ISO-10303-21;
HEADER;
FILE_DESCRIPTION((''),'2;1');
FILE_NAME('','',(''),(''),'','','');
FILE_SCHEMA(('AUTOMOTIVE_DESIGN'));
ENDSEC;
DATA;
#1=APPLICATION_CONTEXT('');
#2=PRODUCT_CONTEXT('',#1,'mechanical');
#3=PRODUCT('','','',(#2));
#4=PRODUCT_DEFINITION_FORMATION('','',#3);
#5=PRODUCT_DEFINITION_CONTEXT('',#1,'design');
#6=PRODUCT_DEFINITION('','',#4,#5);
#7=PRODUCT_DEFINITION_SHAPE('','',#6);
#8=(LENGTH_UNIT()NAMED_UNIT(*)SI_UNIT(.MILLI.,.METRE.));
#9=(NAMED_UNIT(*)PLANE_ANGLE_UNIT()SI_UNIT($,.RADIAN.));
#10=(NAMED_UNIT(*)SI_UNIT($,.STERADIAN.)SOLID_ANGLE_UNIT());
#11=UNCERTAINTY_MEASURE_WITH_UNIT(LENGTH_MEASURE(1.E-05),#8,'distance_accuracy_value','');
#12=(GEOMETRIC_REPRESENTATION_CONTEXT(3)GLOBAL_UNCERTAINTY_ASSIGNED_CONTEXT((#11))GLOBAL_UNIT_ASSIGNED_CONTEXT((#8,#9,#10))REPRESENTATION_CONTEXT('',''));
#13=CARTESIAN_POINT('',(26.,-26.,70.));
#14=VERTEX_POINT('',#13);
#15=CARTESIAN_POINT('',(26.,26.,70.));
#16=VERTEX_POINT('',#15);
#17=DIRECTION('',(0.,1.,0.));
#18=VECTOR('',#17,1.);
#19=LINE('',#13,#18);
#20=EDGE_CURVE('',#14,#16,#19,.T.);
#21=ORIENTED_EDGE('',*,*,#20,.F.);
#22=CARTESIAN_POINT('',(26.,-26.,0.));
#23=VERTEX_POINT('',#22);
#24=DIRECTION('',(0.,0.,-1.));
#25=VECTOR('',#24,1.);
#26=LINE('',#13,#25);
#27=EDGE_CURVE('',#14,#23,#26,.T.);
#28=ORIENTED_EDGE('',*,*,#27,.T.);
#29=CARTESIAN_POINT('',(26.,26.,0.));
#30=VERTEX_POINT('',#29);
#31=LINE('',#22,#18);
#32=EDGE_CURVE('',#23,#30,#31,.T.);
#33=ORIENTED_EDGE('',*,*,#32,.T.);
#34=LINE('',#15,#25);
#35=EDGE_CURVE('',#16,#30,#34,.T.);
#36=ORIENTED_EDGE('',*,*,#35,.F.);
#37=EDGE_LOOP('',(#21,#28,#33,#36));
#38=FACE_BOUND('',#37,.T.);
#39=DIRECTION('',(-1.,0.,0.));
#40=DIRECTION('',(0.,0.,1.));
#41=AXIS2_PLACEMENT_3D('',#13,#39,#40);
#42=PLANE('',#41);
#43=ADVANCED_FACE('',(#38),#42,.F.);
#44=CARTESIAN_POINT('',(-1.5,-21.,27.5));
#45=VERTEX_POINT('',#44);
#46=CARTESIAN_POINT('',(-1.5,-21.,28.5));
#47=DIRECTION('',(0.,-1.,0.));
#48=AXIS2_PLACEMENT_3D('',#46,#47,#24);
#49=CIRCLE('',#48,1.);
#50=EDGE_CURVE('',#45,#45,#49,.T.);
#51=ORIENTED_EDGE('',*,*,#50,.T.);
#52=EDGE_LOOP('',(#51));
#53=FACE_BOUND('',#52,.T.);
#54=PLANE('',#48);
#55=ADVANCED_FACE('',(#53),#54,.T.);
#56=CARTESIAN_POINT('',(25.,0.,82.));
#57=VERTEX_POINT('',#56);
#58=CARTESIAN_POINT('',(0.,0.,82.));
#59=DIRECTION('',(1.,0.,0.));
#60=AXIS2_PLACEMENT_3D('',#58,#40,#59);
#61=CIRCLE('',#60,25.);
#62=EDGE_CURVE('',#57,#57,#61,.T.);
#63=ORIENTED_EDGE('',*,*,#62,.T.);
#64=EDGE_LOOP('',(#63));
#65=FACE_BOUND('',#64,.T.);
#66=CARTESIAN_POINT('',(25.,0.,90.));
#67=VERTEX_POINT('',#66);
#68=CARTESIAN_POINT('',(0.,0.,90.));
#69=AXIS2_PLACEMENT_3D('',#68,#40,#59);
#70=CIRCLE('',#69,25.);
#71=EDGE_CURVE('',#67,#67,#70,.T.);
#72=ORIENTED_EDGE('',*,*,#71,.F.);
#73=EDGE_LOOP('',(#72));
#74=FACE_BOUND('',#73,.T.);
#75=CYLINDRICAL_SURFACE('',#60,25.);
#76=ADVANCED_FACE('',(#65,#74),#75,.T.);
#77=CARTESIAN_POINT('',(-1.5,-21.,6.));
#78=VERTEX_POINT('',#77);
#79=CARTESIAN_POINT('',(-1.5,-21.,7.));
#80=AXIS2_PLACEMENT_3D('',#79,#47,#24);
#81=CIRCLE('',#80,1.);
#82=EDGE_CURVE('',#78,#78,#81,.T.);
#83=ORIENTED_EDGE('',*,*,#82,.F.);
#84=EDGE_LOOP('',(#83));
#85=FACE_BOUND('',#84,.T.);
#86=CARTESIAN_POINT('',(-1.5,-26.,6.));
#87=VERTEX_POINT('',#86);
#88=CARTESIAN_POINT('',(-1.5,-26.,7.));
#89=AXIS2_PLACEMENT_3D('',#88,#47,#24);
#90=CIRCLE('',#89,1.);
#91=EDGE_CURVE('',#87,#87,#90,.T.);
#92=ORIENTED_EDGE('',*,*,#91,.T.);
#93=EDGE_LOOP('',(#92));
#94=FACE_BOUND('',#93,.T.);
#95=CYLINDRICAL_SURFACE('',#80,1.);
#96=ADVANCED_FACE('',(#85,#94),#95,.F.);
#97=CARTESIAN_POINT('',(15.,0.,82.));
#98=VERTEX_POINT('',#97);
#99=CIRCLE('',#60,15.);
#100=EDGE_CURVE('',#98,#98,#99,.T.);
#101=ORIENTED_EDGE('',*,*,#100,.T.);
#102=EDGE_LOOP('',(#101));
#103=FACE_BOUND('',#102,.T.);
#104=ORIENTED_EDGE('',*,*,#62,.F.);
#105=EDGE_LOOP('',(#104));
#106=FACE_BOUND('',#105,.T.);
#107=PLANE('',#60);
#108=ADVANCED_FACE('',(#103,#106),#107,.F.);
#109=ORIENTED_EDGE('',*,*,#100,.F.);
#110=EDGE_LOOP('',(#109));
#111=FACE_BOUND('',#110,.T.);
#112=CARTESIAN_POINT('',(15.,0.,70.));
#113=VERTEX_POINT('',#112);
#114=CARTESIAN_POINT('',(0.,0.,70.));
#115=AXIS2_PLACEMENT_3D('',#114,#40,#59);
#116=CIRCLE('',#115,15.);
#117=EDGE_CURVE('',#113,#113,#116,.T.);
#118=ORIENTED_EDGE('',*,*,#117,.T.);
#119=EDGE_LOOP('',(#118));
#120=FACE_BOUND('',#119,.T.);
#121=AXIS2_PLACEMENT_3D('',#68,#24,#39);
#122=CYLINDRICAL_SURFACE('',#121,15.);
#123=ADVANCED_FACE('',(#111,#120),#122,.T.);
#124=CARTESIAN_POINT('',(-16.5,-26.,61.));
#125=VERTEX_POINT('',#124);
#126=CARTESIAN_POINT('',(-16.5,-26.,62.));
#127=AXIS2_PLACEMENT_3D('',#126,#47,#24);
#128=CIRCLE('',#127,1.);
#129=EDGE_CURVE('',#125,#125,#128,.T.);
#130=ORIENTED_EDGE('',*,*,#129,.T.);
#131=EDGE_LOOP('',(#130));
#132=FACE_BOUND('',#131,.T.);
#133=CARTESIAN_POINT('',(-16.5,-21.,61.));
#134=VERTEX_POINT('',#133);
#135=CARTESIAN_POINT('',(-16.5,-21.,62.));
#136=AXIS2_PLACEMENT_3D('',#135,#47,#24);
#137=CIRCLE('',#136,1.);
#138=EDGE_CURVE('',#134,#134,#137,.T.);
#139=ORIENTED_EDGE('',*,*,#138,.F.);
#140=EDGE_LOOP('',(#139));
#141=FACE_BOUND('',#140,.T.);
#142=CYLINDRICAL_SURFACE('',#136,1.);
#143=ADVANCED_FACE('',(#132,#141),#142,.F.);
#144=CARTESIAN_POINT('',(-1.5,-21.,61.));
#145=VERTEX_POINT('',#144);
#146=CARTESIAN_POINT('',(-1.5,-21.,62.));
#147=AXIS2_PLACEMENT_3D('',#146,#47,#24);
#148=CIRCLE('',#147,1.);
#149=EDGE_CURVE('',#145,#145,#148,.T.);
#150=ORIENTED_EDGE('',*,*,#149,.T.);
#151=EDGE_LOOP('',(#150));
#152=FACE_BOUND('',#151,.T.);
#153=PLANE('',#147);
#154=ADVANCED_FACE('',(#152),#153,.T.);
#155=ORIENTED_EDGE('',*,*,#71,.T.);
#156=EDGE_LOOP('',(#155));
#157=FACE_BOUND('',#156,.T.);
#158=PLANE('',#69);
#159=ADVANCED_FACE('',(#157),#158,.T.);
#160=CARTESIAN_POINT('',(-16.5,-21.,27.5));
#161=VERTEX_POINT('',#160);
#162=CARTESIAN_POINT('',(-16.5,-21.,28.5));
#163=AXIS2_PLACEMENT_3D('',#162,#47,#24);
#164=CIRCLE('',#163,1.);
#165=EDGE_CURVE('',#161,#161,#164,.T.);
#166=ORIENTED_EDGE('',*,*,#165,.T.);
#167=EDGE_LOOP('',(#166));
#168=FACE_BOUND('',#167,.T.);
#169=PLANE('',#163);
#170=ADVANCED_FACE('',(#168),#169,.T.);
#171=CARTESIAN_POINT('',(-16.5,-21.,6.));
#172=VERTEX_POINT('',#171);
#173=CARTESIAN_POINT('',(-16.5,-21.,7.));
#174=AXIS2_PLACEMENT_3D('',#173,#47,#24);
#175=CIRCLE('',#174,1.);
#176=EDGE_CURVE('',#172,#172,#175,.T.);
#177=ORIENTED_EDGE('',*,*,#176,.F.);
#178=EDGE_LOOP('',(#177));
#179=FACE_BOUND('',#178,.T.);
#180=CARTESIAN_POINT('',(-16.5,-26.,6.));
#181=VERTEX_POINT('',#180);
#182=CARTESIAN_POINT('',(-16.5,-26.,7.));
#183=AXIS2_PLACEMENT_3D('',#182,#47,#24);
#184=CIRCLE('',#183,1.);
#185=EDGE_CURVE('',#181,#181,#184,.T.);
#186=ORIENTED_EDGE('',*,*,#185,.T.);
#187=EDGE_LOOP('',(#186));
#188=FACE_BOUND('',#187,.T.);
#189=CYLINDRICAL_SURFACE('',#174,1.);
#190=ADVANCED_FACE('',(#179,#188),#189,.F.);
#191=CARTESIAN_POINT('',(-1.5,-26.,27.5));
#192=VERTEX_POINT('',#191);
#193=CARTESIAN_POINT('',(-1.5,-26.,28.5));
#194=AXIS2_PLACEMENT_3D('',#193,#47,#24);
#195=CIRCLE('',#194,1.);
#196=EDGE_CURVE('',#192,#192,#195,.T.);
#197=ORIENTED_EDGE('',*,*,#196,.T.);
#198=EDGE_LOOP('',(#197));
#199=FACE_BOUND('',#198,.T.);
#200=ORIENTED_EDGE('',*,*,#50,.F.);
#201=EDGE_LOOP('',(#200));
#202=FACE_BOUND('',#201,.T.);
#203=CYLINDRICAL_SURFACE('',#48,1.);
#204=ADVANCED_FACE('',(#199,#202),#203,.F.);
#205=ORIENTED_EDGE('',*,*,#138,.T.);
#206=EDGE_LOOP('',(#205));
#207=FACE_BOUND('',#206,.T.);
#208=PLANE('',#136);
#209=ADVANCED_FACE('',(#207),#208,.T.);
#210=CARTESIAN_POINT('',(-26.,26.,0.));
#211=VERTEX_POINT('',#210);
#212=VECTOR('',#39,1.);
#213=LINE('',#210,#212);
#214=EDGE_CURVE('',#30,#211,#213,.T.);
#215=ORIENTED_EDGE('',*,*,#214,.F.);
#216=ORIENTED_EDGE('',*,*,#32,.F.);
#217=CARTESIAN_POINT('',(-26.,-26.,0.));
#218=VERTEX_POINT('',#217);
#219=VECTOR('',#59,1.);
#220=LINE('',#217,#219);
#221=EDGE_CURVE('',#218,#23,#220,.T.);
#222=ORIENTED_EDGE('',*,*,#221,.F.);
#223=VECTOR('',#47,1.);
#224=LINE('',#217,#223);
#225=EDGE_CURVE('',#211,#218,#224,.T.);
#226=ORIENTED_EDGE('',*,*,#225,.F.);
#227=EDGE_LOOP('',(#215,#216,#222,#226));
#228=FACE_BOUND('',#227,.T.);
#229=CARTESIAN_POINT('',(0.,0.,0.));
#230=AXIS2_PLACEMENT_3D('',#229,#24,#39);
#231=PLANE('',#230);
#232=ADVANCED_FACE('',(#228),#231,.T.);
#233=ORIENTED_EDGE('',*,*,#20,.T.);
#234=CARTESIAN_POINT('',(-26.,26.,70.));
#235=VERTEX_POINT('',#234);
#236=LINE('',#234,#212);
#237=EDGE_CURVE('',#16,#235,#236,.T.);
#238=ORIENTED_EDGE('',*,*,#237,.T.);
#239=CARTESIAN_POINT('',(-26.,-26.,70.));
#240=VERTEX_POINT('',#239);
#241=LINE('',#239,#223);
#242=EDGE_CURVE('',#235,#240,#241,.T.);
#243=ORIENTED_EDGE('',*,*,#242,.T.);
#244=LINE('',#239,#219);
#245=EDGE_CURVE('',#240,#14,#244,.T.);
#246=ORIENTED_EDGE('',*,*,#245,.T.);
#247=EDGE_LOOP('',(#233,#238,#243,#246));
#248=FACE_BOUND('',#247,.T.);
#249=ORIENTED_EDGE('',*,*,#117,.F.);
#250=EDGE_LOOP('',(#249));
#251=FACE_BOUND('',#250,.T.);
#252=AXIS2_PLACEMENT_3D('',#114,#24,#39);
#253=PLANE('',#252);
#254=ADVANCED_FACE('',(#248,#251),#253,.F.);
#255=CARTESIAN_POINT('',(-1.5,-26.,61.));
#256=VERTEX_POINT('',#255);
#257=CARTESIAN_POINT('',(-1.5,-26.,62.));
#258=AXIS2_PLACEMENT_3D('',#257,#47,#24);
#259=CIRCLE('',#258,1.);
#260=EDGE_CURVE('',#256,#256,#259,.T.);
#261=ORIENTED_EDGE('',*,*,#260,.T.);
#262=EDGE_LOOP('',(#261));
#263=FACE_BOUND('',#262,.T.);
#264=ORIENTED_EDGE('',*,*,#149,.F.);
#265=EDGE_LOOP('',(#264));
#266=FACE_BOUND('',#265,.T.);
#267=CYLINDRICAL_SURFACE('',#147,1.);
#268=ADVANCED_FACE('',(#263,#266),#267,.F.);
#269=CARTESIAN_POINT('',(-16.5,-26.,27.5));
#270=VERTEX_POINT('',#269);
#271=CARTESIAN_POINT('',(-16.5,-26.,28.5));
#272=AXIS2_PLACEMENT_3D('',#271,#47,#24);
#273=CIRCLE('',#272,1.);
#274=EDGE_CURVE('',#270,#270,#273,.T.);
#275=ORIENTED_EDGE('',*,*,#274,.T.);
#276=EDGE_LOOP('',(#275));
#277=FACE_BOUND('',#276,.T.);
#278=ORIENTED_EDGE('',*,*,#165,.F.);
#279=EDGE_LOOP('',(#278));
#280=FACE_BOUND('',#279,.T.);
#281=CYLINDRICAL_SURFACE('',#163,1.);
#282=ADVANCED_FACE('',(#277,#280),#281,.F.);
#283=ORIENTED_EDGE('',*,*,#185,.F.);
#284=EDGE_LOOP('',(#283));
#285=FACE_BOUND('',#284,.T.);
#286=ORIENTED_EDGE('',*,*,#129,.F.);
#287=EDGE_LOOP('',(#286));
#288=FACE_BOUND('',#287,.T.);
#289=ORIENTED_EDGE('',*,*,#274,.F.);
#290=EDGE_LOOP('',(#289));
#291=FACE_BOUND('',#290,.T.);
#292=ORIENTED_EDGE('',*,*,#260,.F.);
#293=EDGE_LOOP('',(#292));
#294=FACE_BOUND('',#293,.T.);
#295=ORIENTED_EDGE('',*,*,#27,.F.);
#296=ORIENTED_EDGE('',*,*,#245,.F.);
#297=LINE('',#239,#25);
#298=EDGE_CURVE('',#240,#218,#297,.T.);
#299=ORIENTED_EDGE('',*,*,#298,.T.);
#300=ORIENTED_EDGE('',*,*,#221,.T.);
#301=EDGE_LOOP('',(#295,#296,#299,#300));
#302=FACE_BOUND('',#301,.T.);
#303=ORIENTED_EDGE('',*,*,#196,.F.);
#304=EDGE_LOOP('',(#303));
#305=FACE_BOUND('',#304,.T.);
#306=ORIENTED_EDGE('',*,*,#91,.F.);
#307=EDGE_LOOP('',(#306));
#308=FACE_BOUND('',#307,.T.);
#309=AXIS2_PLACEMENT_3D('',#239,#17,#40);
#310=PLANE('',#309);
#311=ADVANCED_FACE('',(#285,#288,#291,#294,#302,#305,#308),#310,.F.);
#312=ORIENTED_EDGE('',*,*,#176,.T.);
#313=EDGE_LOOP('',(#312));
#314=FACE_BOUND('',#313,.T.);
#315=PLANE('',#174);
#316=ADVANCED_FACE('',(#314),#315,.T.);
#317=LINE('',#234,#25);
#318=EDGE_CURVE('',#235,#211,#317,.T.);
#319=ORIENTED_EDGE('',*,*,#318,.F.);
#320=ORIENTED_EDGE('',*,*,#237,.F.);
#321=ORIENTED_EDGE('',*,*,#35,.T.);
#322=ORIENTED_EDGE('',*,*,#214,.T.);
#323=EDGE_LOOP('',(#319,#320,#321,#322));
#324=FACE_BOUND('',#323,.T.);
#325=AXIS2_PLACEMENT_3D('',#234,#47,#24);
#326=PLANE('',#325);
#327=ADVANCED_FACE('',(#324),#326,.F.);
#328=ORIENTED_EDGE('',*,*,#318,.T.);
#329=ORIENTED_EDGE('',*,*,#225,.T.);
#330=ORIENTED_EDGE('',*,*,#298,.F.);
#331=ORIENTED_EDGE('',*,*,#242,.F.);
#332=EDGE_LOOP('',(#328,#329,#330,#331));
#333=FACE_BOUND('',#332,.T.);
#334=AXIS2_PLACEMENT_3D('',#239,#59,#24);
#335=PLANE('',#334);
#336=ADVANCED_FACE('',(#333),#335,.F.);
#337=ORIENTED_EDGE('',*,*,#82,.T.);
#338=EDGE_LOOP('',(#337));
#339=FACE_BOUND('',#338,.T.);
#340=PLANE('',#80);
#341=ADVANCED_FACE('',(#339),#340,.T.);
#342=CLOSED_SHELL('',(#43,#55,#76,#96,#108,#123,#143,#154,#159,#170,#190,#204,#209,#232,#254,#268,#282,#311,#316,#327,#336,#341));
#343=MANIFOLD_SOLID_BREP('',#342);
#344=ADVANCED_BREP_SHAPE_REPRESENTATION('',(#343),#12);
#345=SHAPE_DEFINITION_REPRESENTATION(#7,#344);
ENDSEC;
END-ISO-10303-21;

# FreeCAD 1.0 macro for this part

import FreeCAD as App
import Part
import Sketcher
from FreeCAD import Vector


def add_polygon(sketch, points):
    """Adds a closed chain of lines whose ends are joined by coincident constraints."""
    first, n = sketch.GeometryCount, len(points)
    for a, b in zip(points, points[1:] + points[:1]):
        sketch.addGeometry(Part.LineSegment(App.Vector(*a, 0), App.Vector(*b, 0)), False)
    for i in range(n):
        sketch.addConstraint(Sketcher.Constraint("Coincident", first + i, 2, first + (i + 1) % n, 1))

doc = App.newDocument("Part")
body = doc.addObject("PartDesign::Body", "Body")

# Sketch on XY plane
sketch1 = body.newObject("Sketcher::SketchObject", "Sketch")
sketch1.AttachmentSupport = (doc.getObject("XY_Plane"), [""])
sketch1.MapMode = "FlatFace"
add_polygon(sketch1, [(-26, 26), (-26, -26), (26, -26), (26, 26)])  # lines 0-3
sketch1.addConstraint([
    Sketcher.Constraint("Vertical", 0),
    Sketcher.Constraint("Horizontal", 1),
    Sketcher.Constraint("Vertical", 2),
    Sketcher.Constraint("Horizontal", 3),
    Sketcher.Constraint("Symmetric", 0, 2, 2, 2, -1, 1),
    Sketcher.Constraint("Equal", 3, 0),
    Sketcher.Constraint("DistanceX", 1, 1, 1, 2, 52.0),
])
pad1 = body.newObject("PartDesign::Pad", "Pad")
pad1.Profile = sketch1
pad1.Length = 70

# Sketch on XY plane
sketch2 = body.newObject("Sketcher::SketchObject", "Sketch001")
sketch2.AttachmentSupport = (doc.getObject("XY_Plane"), [""])
sketch2.MapMode = "FlatFace"
sketch2.AttachmentOffset = App.Placement(Vector(0, 0, 70), App.Rotation())
sketch2.addGeometry(Part.Circle(Vector(0, 0, 0), Vector(0, 0, 1), 15), False)
sketch2.addConstraint([
    Sketcher.Constraint("Coincident", 0, 3, -1, 1),
    Sketcher.Constraint("Diameter", 0, 30.0),
])
pad2 = body.newObject("PartDesign::Pad", "Pad001")
pad2.Profile = sketch2
pad2.Length = 20

# Sketch on XZ plane
sketch3 = body.newObject("Sketcher::SketchObject", "Sketch002")
sketch3.AttachmentSupport = (doc.getObject("XZ_Plane"), [""])
sketch3.MapMode = "FlatFace"
sketch3.AttachmentOffset = App.Placement(Vector(0, 0, 26), App.Rotation())
sketch3.addGeometry([
    Part.Circle(Vector(-16.5, 62, 0), Vector(0, 0, 1), 1),  # 0
    Part.Circle(Vector(-16.5, 28.5, 0), Vector(0, 0, 1), 1),  # 1
    Part.Circle(Vector(-1.5, 62, 0), Vector(0, 0, 1), 1),  # 2
    Part.Circle(Vector(-1.5, 28.5, 0), Vector(0, 0, 1), 1),  # 3
    Part.Circle(Vector(-1.5, 7, 0), Vector(0, 0, 1), 1),  # 4
    Part.Circle(Vector(-16.5, 7, 0), Vector(0, 0, 1), 1),  # 5
], False)
sketch3.addConstraint([
    Sketcher.Constraint("Equal", 0, 1),
    Sketcher.Constraint("Equal", 1, 2),
    Sketcher.Constraint("Equal", 2, 3),
    Sketcher.Constraint("Equal", 3, 4),
    Sketcher.Constraint("Equal", 4, 5),
    Sketcher.Constraint("Horizontal", 0, 3, 2, 3),
    Sketcher.Constraint("Horizontal", 1, 3, 3, 3),
    Sketcher.Constraint("Horizontal", 4, 3, 5, 3),
    Sketcher.Constraint("Vertical", 0, 3, 1, 3),
    Sketcher.Constraint("Vertical", 2, 3, 3, 3),
    Sketcher.Constraint("Vertical", 3, 3, 4, 3),
    Sketcher.Constraint("Vertical", 1, 3, 5, 3),
    Sketcher.Constraint("Diameter", 0, 2.0),
    Sketcher.Constraint("DistanceY", -1, 1, 0, 3, 62.0),
    Sketcher.Constraint("DistanceY", -1, 1, 4, 3, 7.0),
    Sketcher.Constraint("DistanceX", 0, 3, 2, 3, 15.0),
    Sketcher.Constraint("DistanceX", 0, 3, -1, 1, 16.5),
    Sketcher.Constraint("DistanceY", -1, 1, 1, 3, 28.5),
])
pocket1 = body.newObject("PartDesign::Pocket", "Pocket")
pocket1.Profile = sketch3
pocket1.Length = 5

# Sketch on XY plane
sketch4 = body.newObject("Sketcher::SketchObject", "Sketch003")
sketch4.AttachmentSupport = (doc.getObject("XY_Plane"), [""])
sketch4.MapMode = "FlatFace"
sketch4.AttachmentOffset = App.Placement(Vector(0, 0, 90), App.Rotation())
sketch4.addGeometry(Part.Circle(Vector(0, 0, 0), Vector(0, 0, 1), 25), False)
sketch4.addConstraint([
    Sketcher.Constraint("Coincident", 0, 3, -1, 1),
    Sketcher.Constraint("Diameter", 0, 50.0),
])
pad3 = body.newObject("PartDesign::Pad", "Pad002")
pad3.Profile = sketch4
pad3.Length = 8
pad3.Reversed = True

doc.recompute()
